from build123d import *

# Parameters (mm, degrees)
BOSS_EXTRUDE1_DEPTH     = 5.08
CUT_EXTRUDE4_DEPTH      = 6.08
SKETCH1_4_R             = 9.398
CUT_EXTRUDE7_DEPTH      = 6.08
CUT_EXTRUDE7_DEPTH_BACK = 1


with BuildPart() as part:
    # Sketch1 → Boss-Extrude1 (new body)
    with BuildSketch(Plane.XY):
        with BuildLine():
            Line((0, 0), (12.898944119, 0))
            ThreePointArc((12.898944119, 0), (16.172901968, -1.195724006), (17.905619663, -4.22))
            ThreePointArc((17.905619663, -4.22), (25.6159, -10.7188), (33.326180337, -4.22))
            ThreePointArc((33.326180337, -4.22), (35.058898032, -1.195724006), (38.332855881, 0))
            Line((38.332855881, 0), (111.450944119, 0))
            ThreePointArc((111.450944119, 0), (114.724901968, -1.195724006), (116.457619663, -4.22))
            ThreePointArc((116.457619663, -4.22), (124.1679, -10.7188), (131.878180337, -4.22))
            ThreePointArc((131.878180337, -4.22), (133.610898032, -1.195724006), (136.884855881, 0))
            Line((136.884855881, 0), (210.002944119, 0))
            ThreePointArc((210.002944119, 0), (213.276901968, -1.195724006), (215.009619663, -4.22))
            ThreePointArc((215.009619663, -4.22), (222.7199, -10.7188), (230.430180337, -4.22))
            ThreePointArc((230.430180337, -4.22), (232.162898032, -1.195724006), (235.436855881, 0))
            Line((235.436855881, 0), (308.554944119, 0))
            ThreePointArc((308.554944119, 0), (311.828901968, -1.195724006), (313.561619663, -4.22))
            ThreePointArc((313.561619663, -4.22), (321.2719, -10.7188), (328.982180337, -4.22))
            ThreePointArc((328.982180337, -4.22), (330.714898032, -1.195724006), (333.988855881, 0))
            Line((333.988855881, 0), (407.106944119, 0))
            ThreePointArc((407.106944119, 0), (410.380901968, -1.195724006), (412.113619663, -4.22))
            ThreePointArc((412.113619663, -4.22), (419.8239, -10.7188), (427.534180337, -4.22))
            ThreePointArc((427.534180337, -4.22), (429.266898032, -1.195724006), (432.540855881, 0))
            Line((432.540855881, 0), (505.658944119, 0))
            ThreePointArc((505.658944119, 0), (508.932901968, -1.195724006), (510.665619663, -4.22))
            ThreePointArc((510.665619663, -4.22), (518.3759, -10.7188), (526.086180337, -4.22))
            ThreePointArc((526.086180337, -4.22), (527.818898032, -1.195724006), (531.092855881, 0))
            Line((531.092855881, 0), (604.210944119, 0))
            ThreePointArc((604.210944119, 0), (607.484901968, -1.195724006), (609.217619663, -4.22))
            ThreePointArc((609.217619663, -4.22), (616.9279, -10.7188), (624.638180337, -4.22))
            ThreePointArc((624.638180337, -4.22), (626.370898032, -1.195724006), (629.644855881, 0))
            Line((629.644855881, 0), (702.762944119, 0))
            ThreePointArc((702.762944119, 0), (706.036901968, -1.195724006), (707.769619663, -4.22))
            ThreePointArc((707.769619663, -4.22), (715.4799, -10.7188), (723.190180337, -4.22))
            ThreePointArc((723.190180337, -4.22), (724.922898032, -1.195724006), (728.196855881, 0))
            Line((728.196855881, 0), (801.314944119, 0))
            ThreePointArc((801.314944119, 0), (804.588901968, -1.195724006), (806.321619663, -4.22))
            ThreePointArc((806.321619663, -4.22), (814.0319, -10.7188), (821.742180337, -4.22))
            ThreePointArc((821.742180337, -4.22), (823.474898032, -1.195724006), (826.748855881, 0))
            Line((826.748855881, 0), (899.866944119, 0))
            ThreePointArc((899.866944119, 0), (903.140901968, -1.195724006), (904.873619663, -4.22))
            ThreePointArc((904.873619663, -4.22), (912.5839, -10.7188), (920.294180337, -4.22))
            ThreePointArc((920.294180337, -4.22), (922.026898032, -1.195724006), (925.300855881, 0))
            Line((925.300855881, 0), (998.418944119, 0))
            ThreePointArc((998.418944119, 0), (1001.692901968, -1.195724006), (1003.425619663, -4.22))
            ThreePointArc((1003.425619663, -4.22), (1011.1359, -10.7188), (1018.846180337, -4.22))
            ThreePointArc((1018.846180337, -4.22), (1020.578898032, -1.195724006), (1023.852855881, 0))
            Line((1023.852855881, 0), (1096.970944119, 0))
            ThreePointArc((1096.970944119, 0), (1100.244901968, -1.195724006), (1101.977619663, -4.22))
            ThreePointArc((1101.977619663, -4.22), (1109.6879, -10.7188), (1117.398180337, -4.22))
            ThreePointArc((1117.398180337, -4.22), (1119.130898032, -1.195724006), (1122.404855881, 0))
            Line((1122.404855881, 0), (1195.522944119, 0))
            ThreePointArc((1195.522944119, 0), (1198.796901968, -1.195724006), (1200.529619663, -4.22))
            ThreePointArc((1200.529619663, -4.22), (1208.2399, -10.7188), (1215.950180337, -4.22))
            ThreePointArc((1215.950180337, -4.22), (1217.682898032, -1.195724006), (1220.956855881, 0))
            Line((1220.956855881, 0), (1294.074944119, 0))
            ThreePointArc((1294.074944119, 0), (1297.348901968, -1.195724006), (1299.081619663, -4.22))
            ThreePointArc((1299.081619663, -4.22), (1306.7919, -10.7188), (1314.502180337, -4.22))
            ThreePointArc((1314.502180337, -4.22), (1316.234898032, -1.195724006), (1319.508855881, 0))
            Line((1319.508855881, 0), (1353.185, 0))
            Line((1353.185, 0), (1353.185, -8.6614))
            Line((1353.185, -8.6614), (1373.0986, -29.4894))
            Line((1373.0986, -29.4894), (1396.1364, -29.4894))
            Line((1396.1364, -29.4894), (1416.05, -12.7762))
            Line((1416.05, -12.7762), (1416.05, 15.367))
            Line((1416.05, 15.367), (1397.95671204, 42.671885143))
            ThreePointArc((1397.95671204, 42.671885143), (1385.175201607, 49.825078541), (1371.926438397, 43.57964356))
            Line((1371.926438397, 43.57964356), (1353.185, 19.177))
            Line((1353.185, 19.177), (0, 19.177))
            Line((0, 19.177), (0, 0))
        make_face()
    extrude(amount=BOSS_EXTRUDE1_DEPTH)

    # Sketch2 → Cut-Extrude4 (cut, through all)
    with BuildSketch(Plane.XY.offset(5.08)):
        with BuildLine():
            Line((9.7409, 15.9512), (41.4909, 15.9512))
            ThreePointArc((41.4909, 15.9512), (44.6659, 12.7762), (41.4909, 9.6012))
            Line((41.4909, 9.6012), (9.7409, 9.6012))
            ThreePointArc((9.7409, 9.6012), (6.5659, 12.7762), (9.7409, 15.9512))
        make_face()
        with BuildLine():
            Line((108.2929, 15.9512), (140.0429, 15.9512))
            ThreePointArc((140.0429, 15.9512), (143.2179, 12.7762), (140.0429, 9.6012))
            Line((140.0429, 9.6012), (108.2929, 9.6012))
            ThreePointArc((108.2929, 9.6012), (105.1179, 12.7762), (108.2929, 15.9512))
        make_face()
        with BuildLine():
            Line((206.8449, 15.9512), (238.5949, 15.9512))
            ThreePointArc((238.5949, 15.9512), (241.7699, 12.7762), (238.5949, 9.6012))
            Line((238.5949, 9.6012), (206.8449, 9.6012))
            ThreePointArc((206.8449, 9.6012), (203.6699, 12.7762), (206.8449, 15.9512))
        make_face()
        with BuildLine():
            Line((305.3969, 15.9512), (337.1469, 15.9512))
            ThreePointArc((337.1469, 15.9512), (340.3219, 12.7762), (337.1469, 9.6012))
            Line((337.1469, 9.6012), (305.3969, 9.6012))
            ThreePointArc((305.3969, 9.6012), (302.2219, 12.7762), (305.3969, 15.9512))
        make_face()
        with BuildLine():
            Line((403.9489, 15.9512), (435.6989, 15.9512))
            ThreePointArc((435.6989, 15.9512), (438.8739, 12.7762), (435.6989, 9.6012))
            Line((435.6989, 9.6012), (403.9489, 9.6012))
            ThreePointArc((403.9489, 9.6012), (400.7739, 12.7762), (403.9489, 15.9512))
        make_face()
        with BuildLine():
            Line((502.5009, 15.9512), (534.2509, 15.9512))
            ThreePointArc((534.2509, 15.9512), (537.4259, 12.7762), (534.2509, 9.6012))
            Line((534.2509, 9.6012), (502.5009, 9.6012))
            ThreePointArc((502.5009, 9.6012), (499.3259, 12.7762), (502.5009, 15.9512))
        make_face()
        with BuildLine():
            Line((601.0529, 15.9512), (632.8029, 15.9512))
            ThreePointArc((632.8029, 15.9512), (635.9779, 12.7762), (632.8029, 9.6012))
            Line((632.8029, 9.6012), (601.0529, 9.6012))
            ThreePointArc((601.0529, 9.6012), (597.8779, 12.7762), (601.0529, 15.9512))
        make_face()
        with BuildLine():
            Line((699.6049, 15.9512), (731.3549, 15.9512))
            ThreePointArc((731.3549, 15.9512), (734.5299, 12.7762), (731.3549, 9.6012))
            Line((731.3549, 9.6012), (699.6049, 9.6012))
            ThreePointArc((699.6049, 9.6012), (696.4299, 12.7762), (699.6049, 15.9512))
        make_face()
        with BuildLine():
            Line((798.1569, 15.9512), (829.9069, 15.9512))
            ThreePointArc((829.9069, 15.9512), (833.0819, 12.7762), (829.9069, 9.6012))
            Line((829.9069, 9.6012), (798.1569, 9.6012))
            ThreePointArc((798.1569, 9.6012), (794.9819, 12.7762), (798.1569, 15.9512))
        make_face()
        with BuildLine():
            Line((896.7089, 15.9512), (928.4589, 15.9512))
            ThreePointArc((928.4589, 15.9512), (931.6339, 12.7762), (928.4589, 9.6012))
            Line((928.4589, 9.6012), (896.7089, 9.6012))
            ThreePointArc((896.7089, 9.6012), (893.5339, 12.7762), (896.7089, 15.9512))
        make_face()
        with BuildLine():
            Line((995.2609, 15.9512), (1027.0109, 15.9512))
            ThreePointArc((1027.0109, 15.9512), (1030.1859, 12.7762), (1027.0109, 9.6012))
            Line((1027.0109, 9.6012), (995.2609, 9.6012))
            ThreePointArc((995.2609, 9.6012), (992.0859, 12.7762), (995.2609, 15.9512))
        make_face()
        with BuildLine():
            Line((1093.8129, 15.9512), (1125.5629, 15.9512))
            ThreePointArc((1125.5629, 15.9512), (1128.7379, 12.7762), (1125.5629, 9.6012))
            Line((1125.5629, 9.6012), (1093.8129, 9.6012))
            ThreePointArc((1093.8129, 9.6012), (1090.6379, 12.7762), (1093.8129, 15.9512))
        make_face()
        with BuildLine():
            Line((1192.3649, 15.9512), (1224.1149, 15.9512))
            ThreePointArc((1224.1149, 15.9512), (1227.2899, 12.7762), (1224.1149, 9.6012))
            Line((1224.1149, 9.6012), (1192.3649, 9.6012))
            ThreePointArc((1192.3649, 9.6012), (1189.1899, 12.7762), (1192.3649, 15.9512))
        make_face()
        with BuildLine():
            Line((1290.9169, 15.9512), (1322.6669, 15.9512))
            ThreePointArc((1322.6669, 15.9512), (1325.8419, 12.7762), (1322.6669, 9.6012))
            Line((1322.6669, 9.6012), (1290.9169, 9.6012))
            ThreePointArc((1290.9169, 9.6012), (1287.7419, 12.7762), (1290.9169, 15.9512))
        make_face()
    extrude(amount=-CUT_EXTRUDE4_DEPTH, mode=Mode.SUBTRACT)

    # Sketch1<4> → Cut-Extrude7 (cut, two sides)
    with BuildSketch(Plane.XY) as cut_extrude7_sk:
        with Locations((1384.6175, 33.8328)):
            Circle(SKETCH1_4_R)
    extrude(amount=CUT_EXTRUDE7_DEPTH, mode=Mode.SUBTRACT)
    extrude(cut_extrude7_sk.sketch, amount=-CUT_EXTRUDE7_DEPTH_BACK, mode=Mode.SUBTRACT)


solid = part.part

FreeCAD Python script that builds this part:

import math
import FreeCAD as App
import Part
import Sketcher
Q = App.Units.Quantity

doc = App.newDocument("Part")
body = doc.addObject("PartDesign::Body", "Body")

sketch1 = body.newObject("Sketcher::SketchObject", "Sketch")
sketch1.AttachmentSupport = (doc.getObject("XY_Plane"), [""])
sketch1.MapMode = "FlatFace"
sketch1.addGeometry(Part.LineSegment(App.Vector(0, 0, 0), App.Vector(13, 0, 0)), False)
sketch1.addGeometry(Part.ArcOfCircle(Part.Circle(App.Vector(13, -5, 0), App.Vector(0, 0, 1), 5), math.radians(10), math.radians(90)), False)
sketch1.addGeometry(Part.ArcOfCircle(Part.Circle(App.Vector(26, -3, 0), App.Vector(0, 0, 1), 8), math.radians(-170), math.radians(-10)), False)
sketch1.addGeometry(Part.ArcOfCircle(Part.Circle(App.Vector(38, -5, 0), App.Vector(0, 0, 1), 5), math.radians(90), math.radians(170)), False)
sketch1.addGeometry(Part.LineSegment(App.Vector(38, 0, 0), App.Vector(111, 0, 0)), False)
sketch1.addGeometry(Part.ArcOfCircle(Part.Circle(App.Vector(111, -5, 0), App.Vector(0, 0, 1), 5), math.radians(10), math.radians(90)), False)
sketch1.addGeometry(Part.ArcOfCircle(Part.Circle(App.Vector(124, -3, 0), App.Vector(0, 0, 1), 8), math.radians(-170), math.radians(-10)), False)
sketch1.addGeometry(Part.ArcOfCircle(Part.Circle(App.Vector(137, -5, 0), App.Vector(0, 0, 1), 5), math.radians(90), math.radians(170)), False)
sketch1.addGeometry(Part.LineSegment(App.Vector(137, 0, 0), App.Vector(210, 0, 0)), False)
sketch1.addGeometry(Part.ArcOfCircle(Part.Circle(App.Vector(210, -5, 0), App.Vector(0, 0, 1), 5), math.radians(10), math.radians(90)), False)
sketch1.addGeometry(Part.ArcOfCircle(Part.Circle(App.Vector(223, -3, 0), App.Vector(0, 0, 1), 8), math.radians(-170), math.radians(-10)), False)
sketch1.addGeometry(Part.ArcOfCircle(Part.Circle(App.Vector(235, -5, 0), App.Vector(0, 0, 1), 5), math.radians(90), math.radians(170)), False)
sketch1.addGeometry(Part.LineSegment(App.Vector(235, 0, 0), App.Vector(309, 0, 0)), False)
sketch1.addGeometry(Part.ArcOfCircle(Part.Circle(App.Vector(309, -5, 0), App.Vector(0, 0, 1), 5), math.radians(10), math.radians(90)), False)
sketch1.addGeometry(Part.ArcOfCircle(Part.Circle(App.Vector(321, -3, 0), App.Vector(0, 0, 1), 8), math.radians(-170), math.radians(-10)), False)
sketch1.addGeometry(Part.ArcOfCircle(Part.Circle(App.Vector(334, -5, 0), App.Vector(0, 0, 1), 5), math.radians(90), math.radians(170)), False)
sketch1.addGeometry(Part.LineSegment(App.Vector(334, 0, 0), App.Vector(407, 0, 0)), False)
sketch1.addGeometry(Part.ArcOfCircle(Part.Circle(App.Vector(407, -5, 0), App.Vector(0, 0, 1), 5), math.radians(10), math.radians(90)), False)
sketch1.addGeometry(Part.ArcOfCircle(Part.Circle(App.Vector(420, -3, 0), App.Vector(0, 0, 1), 8), math.radians(-170), math.radians(-10)), False)
sketch1.addGeometry(Part.ArcOfCircle(Part.Circle(App.Vector(433, -5, 0), App.Vector(0, 0, 1), 5), math.radians(90), math.radians(170)), False)
sketch1.addGeometry(Part.LineSegment(App.Vector(433, 0, 0), App.Vector(506, 0, 0)), False)
sketch1.addGeometry(Part.ArcOfCircle(Part.Circle(App.Vector(506, -5, 0), App.Vector(0, 0, 1), 5), math.radians(10), math.radians(90)), False)
sketch1.addGeometry(Part.ArcOfCircle(Part.Circle(App.Vector(518, -3, 0), App.Vector(0, 0, 1), 8), math.radians(-170), math.radians(-10)), False)
sketch1.addGeometry(Part.ArcOfCircle(Part.Circle(App.Vector(531, -5, 0), App.Vector(0, 0, 1), 5), math.radians(90), math.radians(170)), False)
sketch1.addGeometry(Part.LineSegment(App.Vector(531, 0, 0), App.Vector(604, 0, 0)), False)
sketch1.addGeometry(Part.ArcOfCircle(Part.Circle(App.Vector(604, -5, 0), App.Vector(0, 0, 1), 5), math.radians(10), math.radians(90)), False)
sketch1.addGeometry(Part.ArcOfCircle(Part.Circle(App.Vector(617, -3, 0), App.Vector(0, 0, 1), 8), math.radians(-170), math.radians(-10)), False)
sketch1.addGeometry(Part.ArcOfCircle(Part.Circle(App.Vector(630, -5, 0), App.Vector(0, 0, 1), 5), math.radians(90), math.radians(170)), False)
sketch1.addGeometry(Part.LineSegment(App.Vector(630, 0, 0), App.Vector(703, 0, 0)), False)
sketch1.addGeometry(Part.ArcOfCircle(Part.Circle(App.Vector(703, -5, 0), App.Vector(0, 0, 1), 5), math.radians(10), math.radians(90)), False)
sketch1.addGeometry(Part.ArcOfCircle(Part.Circle(App.Vector(715, -3, 0), App.Vector(0, 0, 1), 8), math.radians(-170), math.radians(-10)), False)
sketch1.addGeometry(Part.ArcOfCircle(Part.Circle(App.Vector(728, -5, 0), App.Vector(0, 0, 1), 5), math.radians(90), math.radians(170)), False)
sketch1.addGeometry(Part.LineSegment(App.Vector(728, 0, 0), App.Vector(801, 0, 0)), False)
sketch1.addGeometry(Part.ArcOfCircle(Part.Circle(App.Vector(801, -5, 0), App.Vector(0, 0, 1), 5), math.radians(10), math.radians(90)), False)
sketch1.addGeometry(Part.ArcOfCircle(Part.Circle(App.Vector(814, -3, 0), App.Vector(0, 0, 1), 8), math.radians(-170), math.radians(-10)), False)
sketch1.addGeometry(Part.ArcOfCircle(Part.Circle(App.Vector(827, -5, 0), App.Vector(0, 0, 1), 5), math.radians(90), math.radians(170)), False)
sketch1.addGeometry(Part.LineSegment(App.Vector(827, 0, 0), App.Vector(900, 0, 0)), False)
sketch1.addGeometry(Part.ArcOfCircle(Part.Circle(App.Vector(900, -5, 0), App.Vector(0, 0, 1), 5), math.radians(10), math.radians(90)), False)
sketch1.addGeometry(Part.ArcOfCircle(Part.Circle(App.Vector(913, -3, 0), App.Vector(0, 0, 1), 8), math.radians(-170), math.radians(-10)), False)
sketch1.addGeometry(Part.ArcOfCircle(Part.Circle(App.Vector(925, -5, 0), App.Vector(0, 0, 1), 5), math.radians(90), math.radians(170)), False)
sketch1.addGeometry(Part.LineSegment(App.Vector(925, 0, 0), App.Vector(998, 0, 0)), False)
sketch1.addGeometry(Part.ArcOfCircle(Part.Circle(App.Vector(998, -5, 0), App.Vector(0, 0, 1), 5), math.radians(10), math.radians(90)), False)
sketch1.addGeometry(Part.ArcOfCircle(Part.Circle(App.Vector(1011, -3, 0), App.Vector(0, 0, 1), 8), math.radians(-170), math.radians(-10)), False)
sketch1.addGeometry(Part.ArcOfCircle(Part.Circle(App.Vector(1024, -5, 0), App.Vector(0, 0, 1), 5), math.radians(90), math.radians(170)), False)
sketch1.addGeometry(Part.LineSegment(App.Vector(1024, 0, 0), App.Vector(1097, 0, 0)), False)
sketch1.addGeometry(Part.ArcOfCircle(Part.Circle(App.Vector(1097, -5, 0), App.Vector(0, 0, 1), 5), math.radians(10), math.radians(90)), False)
sketch1.addGeometry(Part.ArcOfCircle(Part.Circle(App.Vector(1110, -3, 0), App.Vector(0, 0, 1), 8), math.radians(-170), math.radians(-10)), False)
sketch1.addGeometry(Part.ArcOfCircle(Part.Circle(App.Vector(1122, -5, 0), App.Vector(0, 0, 1), 5), math.radians(90), math.radians(170)), False)
sketch1.addGeometry(Part.LineSegment(App.Vector(1122, 0, 0), App.Vector(1196, 0, 0)), False)
sketch1.addGeometry(Part.ArcOfCircle(Part.Circle(App.Vector(1196, -5, 0), App.Vector(0, 0, 1), 5), math.radians(10), math.radians(90)), False)
sketch1.addGeometry(Part.ArcOfCircle(Part.Circle(App.Vector(1208, -3, 0), App.Vector(0, 0, 1), 8), math.radians(-170), math.radians(-10)), False)
sketch1.addGeometry(Part.ArcOfCircle(Part.Circle(App.Vector(1221, -5, 0), App.Vector(0, 0, 1), 5), math.radians(90), math.radians(170)), False)
sketch1.addGeometry(Part.LineSegment(App.Vector(1221, 0, 0), App.Vector(1294, 0, 0)), False)
sketch1.addGeometry(Part.ArcOfCircle(Part.Circle(App.Vector(1294, -5, 0), App.Vector(0, 0, 1), 5), math.radians(10), math.radians(90)), False)
sketch1.addGeometry(Part.ArcOfCircle(Part.Circle(App.Vector(1307, -3, 0), App.Vector(0, 0, 1), 8), math.radians(-170), math.radians(-10)), False)
sketch1.addGeometry(Part.ArcOfCircle(Part.Circle(App.Vector(1320, -5, 0), App.Vector(0, 0, 1), 5), math.radians(90), math.radians(170)), False)
sketch1.addGeometry(Part.LineSegment(App.Vector(1320, 0, 0), App.Vector(1353, 0, 0)), False)
sketch1.addGeometry(Part.LineSegment(App.Vector(1353, 0, 0), App.Vector(1353, -9, 0)), False)
sketch1.addGeometry(Part.LineSegment(App.Vector(1353, -9, 0), App.Vector(1373, -29, 0)), False)
sketch1.addGeometry(Part.LineSegment(App.Vector(1373, -29, 0), App.Vector(1396, -29, 0)), False)
sketch1.addGeometry(Part.LineSegment(App.Vector(1396, -29, 0), App.Vector(1416, -13, 0)), False)
sketch1.addGeometry(Part.LineSegment(App.Vector(1416, -13, 0), App.Vector(1416, 15, 0)), False)
sketch1.addGeometry(Part.LineSegment(App.Vector(1416, 15, 0), App.Vector(1398, 43, 0)), False)
sketch1.addGeometry(Part.ArcOfCircle(Part.Circle(App.Vector(1385, 34, 0), App.Vector(0, 0, 1), 16), math.radians(34), math.radians(142)), False)
sketch1.addGeometry(Part.LineSegment(App.Vector(1372, 44, 0), App.Vector(1353, 19, 0)), False)
sketch1.addGeometry(Part.LineSegment(App.Vector(1353, 19, 0), App.Vector(0, 19, 0)), False)
sketch1.addGeometry(Part.LineSegment(App.Vector(0, 19, 0), App.Vector(0, 0, 0)), False)
sketch1.addConstraint(Sketcher.Constraint("Tangent", 0, 2, 1, 2))
sketch1.addConstraint(Sketcher.Constraint("Tangent", 1, 1, 2, 1))
sketch1.addConstraint(Sketcher.Constraint("Tangent", 2, 2, 3, 2))
sketch1.addConstraint(Sketcher.Constraint("Tangent", 3, 1, 4, 1))
sketch1.addConstraint(Sketcher.Constraint("Tangent", 4, 2, 5, 2))
sketch1.addConstraint(Sketcher.Constraint("Tangent", 5, 1, 6, 1))
sketch1.addConstraint(Sketcher.Constraint("Tangent", 6, 2, 7, 2))
sketch1.addConstraint(Sketcher.Constraint("Tangent", 7, 1, 8, 1))
sketch1.addConstraint(Sketcher.Constraint("Tangent", 8, 2, 9, 2))
sketch1.addConstraint(Sketcher.Constraint("Tangent", 9, 1, 10, 1))
sketch1.addConstraint(Sketcher.Constraint("Tangent", 10, 2, 11, 2))
sketch1.addConstraint(Sketcher.Constraint("Tangent", 11, 1, 12, 1))
sketch1.addConstraint(Sketcher.Constraint("Tangent", 12, 2, 13, 2))
sketch1.addConstraint(Sketcher.Constraint("Tangent", 13, 1, 14, 1))
sketch1.addConstraint(Sketcher.Constraint("Tangent", 14, 2, 15, 2))
sketch1.addConstraint(Sketcher.Constraint("Tangent", 15, 1, 16, 1))
sketch1.addConstraint(Sketcher.Constraint("Tangent", 16, 2, 17, 2))
sketch1.addConstraint(Sketcher.Constraint("Tangent", 17, 1, 18, 1))
sketch1.addConstraint(Sketcher.Constraint("Tangent", 18, 2, 19, 2))
sketch1.addConstraint(Sketcher.Constraint("Tangent", 19, 1, 20, 1))
sketch1.addConstraint(Sketcher.Constraint("Tangent", 20, 2, 21, 2))
sketch1.addConstraint(Sketcher.Constraint("Tangent", 21, 1, 22, 1))
sketch1.addConstraint(Sketcher.Constraint("Tangent", 22, 2, 23, 2))
sketch1.addConstraint(Sketcher.Constraint("Tangent", 23, 1, 24, 1))
sketch1.addConstraint(Sketcher.Constraint("Tangent", 24, 2, 25, 2))
sketch1.addConstraint(Sketcher.Constraint("Tangent", 25, 1, 26, 1))
sketch1.addConstraint(Sketcher.Constraint("Tangent", 26, 2, 27, 2))
sketch1.addConstraint(Sketcher.Constraint("Tangent", 27, 1, 28, 1))
sketch1.addConstraint(Sketcher.Constraint("Tangent", 28, 2, 29, 2))
sketch1.addConstraint(Sketcher.Constraint("Tangent", 29, 1, 30, 1))
sketch1.addConstraint(Sketcher.Constraint("Tangent", 30, 2, 31, 2))
sketch1.addConstraint(Sketcher.Constraint("Tangent", 31, 1, 32, 1))
sketch1.addConstraint(Sketcher.Constraint("Tangent", 32, 2, 33, 2))
sketch1.addConstraint(Sketcher.Constraint("Tangent", 33, 1, 34, 1))
sketch1.addConstraint(Sketcher.Constraint("Tangent", 34, 2, 35, 2))
sketch1.addConstraint(Sketcher.Constraint("Tangent", 35, 1, 36, 1))
sketch1.addConstraint(Sketcher.Constraint("Tangent", 36, 2, 37, 2))
sketch1.addConstraint(Sketcher.Constraint("Tangent", 37, 1, 38, 1))
sketch1.addConstraint(Sketcher.Constraint("Tangent", 38, 2, 39, 2))
sketch1.addConstraint(Sketcher.Constraint("Tangent", 39, 1, 40, 1))
sketch1.addConstraint(Sketcher.Constraint("Tangent", 40, 2, 41, 2))
sketch1.addConstraint(Sketcher.Constraint("Tangent", 41, 1, 42, 1))
sketch1.addConstraint(Sketcher.Constraint("Tangent", 42, 2, 43, 2))
sketch1.addConstraint(Sketcher.Constraint("Tangent", 43, 1, 44, 1))
sketch1.addConstraint(Sketcher.Constraint("Tangent", 44, 2, 45, 2))
sketch1.addConstraint(Sketcher.Constraint("Tangent", 45, 1, 46, 1))
sketch1.addConstraint(Sketcher.Constraint("Tangent", 46, 2, 47, 2))
sketch1.addConstraint(Sketcher.Constraint("Tangent", 47, 1, 48, 1))
sketch1.addConstraint(Sketcher.Constraint("Tangent", 48, 2, 49, 2))
sketch1.addConstraint(Sketcher.Constraint("Tangent", 49, 1, 50, 1))
sketch1.addConstraint(Sketcher.Constraint("Tangent", 50, 2, 51, 2))
sketch1.addConstraint(Sketcher.Constraint("Tangent", 51, 1, 52, 1))
sketch1.addConstraint(Sketcher.Constraint("Tangent", 52, 2, 53, 2))
sketch1.addConstraint(Sketcher.Constraint("Tangent", 53, 1, 54, 1))
sketch1.addConstraint(Sketcher.Constraint("Tangent", 54, 2, 55, 2))
sketch1.addConstraint(Sketcher.Constraint("Tangent", 55, 1, 56, 1))
sketch1.addConstraint(Sketcher.Constraint("Coincident", 56, 2, 57, 1))
sketch1.addConstraint(Sketcher.Constraint("Coincident", 57, 2, 58, 1))
sketch1.addConstraint(Sketcher.Constraint("Coincident", 58, 2, 59, 1))
sketch1.addConstraint(Sketcher.Constraint("Coincident", 59, 2, 60, 1))
sketch1.addConstraint(Sketcher.Constraint("Coincident", 60, 2, 61, 1))
sketch1.addConstraint(Sketcher.Constraint("Coincident", 61, 2, 62, 1))
sketch1.addConstraint(Sketcher.Constraint("Tangent", 62, 2, 63, 1))
sketch1.addConstraint(Sketcher.Constraint("Tangent", 63, 2, 64, 1))
sketch1.addConstraint(Sketcher.Constraint("Coincident", 64, 2, 65, 1))
sketch1.addConstraint(Sketcher.Constraint("Coincident", 65, 2, 66, 1))
sketch1.addConstraint(Sketcher.Constraint("Coincident", 66, 2, 0, 1))
sketch1.addConstraint(Sketcher.Constraint("Horizontal", 0))
sketch1.addConstraint(Sketcher.Constraint("Horizontal", 4))
sketch1.addConstraint(Sketcher.Constraint("Horizontal", 8))
sketch1.addConstraint(Sketcher.Constraint("Horizontal", 12))
sketch1.addConstraint(Sketcher.Constraint("Horizontal", 16))
sketch1.addConstraint(Sketcher.Constraint("Horizontal", 20))
sketch1.addConstraint(Sketcher.Constraint("Horizontal", 24))
sketch1.addConstraint(Sketcher.Constraint("Horizontal", 28))
sketch1.addConstraint(Sketcher.Constraint("Horizontal", 32))
sketch1.addConstraint(Sketcher.Constraint("Horizontal", 36))
sketch1.addConstraint(Sketcher.Constraint("Horizontal", 40))
sketch1.addConstraint(Sketcher.Constraint("Horizontal", 44))
sketch1.addConstraint(Sketcher.Constraint("Horizontal", 48))
sketch1.addConstraint(Sketcher.Constraint("Horizontal", 52))
sketch1.addConstraint(Sketcher.Constraint("Horizontal", 56))
sketch1.addConstraint(Sketcher.Constraint("Vertical", 57))
sketch1.addConstraint(Sketcher.Constraint("Horizontal", 59))
sketch1.addConstraint(Sketcher.Constraint("Vertical", 61))
sketch1.addConstraint(Sketcher.Constraint("Horizontal", 65))
sketch1.addConstraint(Sketcher.Constraint("Vertical", 66))
sketch1.addConstraint(Sketcher.Constraint("Coincident", 66, 2, -1, 1))
sketch1.addConstraint(Sketcher.Constraint("Equal", 1, 3))
sketch1.addConstraint(Sketcher.Constraint("Equal", 3, 5))
sketch1.addConstraint(Sketcher.Constraint("Equal", 2, 6))
sketch1.addConstraint(Sketcher.Constraint("Equal", 5, 7))
sketch1.addConstraint(Sketcher.Constraint("Equal", 7, 9))
sketch1.addConstraint(Sketcher.Constraint("Equal", 6, 10))
sketch1.addConstraint(Sketcher.Constraint("Equal", 9, 11))
sketch1.addConstraint(Sketcher.Constraint("Equal", 11, 13))
sketch1.addConstraint(Sketcher.Constraint("Equal", 10, 14))
sketch1.addConstraint(Sketcher.Constraint("Equal", 13, 15))
sketch1.addConstraint(Sketcher.Constraint("Equal", 15, 17))
sketch1.addConstraint(Sketcher.Constraint("Equal", 14, 18))
sketch1.addConstraint(Sketcher.Constraint("Equal", 17, 19))
sketch1.addConstraint(Sketcher.Constraint("Equal", 19, 21))
sketch1.addConstraint(Sketcher.Constraint("Equal", 18, 22))
sketch1.addConstraint(Sketcher.Constraint("Equal", 21, 23))
sketch1.addConstraint(Sketcher.Constraint("Equal", 23, 25))
sketch1.addConstraint(Sketcher.Constraint("Equal", 22, 26))
sketch1.addConstraint(Sketcher.Constraint("Equal", 25, 27))
sketch1.addConstraint(Sketcher.Constraint("Equal", 27, 29))
sketch1.addConstraint(Sketcher.Constraint("Equal", 26, 30))
sketch1.addConstraint(Sketcher.Constraint("Equal", 29, 31))
sketch1.addConstraint(Sketcher.Constraint("Equal", 31, 33))
sketch1.addConstraint(Sketcher.Constraint("Equal", 30, 34))
sketch1.addConstraint(Sketcher.Constraint("Equal", 33, 35))
sketch1.addConstraint(Sketcher.Constraint("Equal", 35, 37))
sketch1.addConstraint(Sketcher.Constraint("Equal", 34, 38))
sketch1.addConstraint(Sketcher.Constraint("Equal", 37, 39))
sketch1.addConstraint(Sketcher.Constraint("Equal", 39, 41))
sketch1.addConstraint(Sketcher.Constraint("Equal", 38, 42))
sketch1.addConstraint(Sketcher.Constraint("Equal", 41, 43))
sketch1.addConstraint(Sketcher.Constraint("Equal", 43, 45))
sketch1.addConstraint(Sketcher.Constraint("Equal", 42, 46))
sketch1.addConstraint(Sketcher.Constraint("Equal", 45, 47))
sketch1.addConstraint(Sketcher.Constraint("Equal", 47, 49))
sketch1.addConstraint(Sketcher.Constraint("Equal", 46, 50))
sketch1.addConstraint(Sketcher.Constraint("Equal", 49, 51))
sketch1.addConstraint(Sketcher.Constraint("Equal", 51, 53))
sketch1.addConstraint(Sketcher.Constraint("Equal", 50, 54))
sketch1.addConstraint(Sketcher.Constraint("Equal", 53, 55))
sketch1.addConstraint(Sketcher.Constraint("PointOnObject", 3, 1, -1))
sketch1.addConstraint(Sketcher.Constraint("PointOnObject", 7, 1, -1))
sketch1.addConstraint(Sketcher.Constraint("PointOnObject", 11, 1, -1))
sketch1.addConstraint(Sketcher.Constraint("PointOnObject", 15, 1, -1))
sketch1.addConstraint(Sketcher.Constraint("PointOnObject", 19, 1, -1))
sketch1.addConstraint(Sketcher.Constraint("PointOnObject", 23, 1, -1))
sketch1.addConstraint(Sketcher.Constraint("PointOnObject", 27, 1, -1))
sketch1.addConstraint(Sketcher.Constraint("PointOnObject", 31, 1, -1))
sketch1.addConstraint(Sketcher.Constraint("PointOnObject", 35, 1, -1))
sketch1.addConstraint(Sketcher.Constraint("PointOnObject", 39, 1, -1))
sketch1.addConstraint(Sketcher.Constraint("PointOnObject", 43, 1, -1))
sketch1.addConstraint(Sketcher.Constraint("PointOnObject", 47, 1, -1))
sketch1.addConstraint(Sketcher.Constraint("PointOnObject", 51, 1, -1))
sketch1.addConstraint(Sketcher.Constraint("PointOnObject", 55, 1, -1))
sketch1.addConstraint(Sketcher.Constraint("Horizontal", 2, 3, 6, 3))
sketch1.addConstraint(Sketcher.Constraint("Horizontal", 6, 3, 10, 3))
sketch1.addConstraint(Sketcher.Constraint("Horizontal", 10, 3, 14, 3))
sketch1.addConstraint(Sketcher.Constraint("Horizontal", 14, 3, 18, 3))
sketch1.addConstraint(Sketcher.Constraint("Horizontal", 18, 3, 22, 3))
sketch1.addConstraint(Sketcher.Constraint("Horizontal", 22, 3, 26, 3))
sketch1.addConstraint(Sketcher.Constraint("Horizontal", 26, 3, 30, 3))
sketch1.addConstraint(Sketcher.Constraint("Horizontal", 30, 3, 34, 3))
sketch1.addConstraint(Sketcher.Constraint("Horizontal", 34, 3, 38, 3))
sketch1.addConstraint(Sketcher.Constraint("Horizontal", 38, 3, 42, 3))
sketch1.addConstraint(Sketcher.Constraint("Horizontal", 42, 3, 46, 3))
sketch1.addConstraint(Sketcher.Constraint("Horizontal", 46, 3, 50, 3))
sketch1.addConstraint(Sketcher.Constraint("Horizontal", 50, 3, 54, 3))
sketch1.addConstraint(Sketcher.Constraint("Vertical", 57, 2, 64, 2))
sketch1.addConstraint(Sketcher.Constraint("Equal", 4, 8))
sketch1.addConstraint(Sketcher.Constraint("Equal", 8, 12))
sketch1.addConstraint(Sketcher.Constraint("Equal", 12, 16))
sketch1.addConstraint(Sketcher.Constraint("Equal", 16, 20))
sketch1.addConstraint(Sketcher.Constraint("Equal", 20, 24))
sketch1.addConstraint(Sketcher.Constraint("Equal", 24, 28))
sketch1.addConstraint(Sketcher.Constraint("Equal", 28, 32))
sketch1.addConstraint(Sketcher.Constraint("Equal", 32, 36))
sketch1.addConstraint(Sketcher.Constraint("Equal", 36, 40))
sketch1.addConstraint(Sketcher.Constraint("Equal", 40, 44))
sketch1.addConstraint(Sketcher.Constraint("Equal", 44, 48))
sketch1.addConstraint(Sketcher.Constraint("Equal", 48, 52))
sketch1.addConstraint(Sketcher.Constraint("Radius", 1, Q("0.2 in")))
sketch1.addConstraint(Sketcher.Constraint("Radius", 63, Q("0.63 in")))
sketch1.addConstraint(Sketcher.Constraint("Radius", 2, Q("0.308 in")))
sketch1.addConstraint(Sketcher.Constraint("DistanceX", 59, 1, 59, 2, Q("0.907 in")))
sketch1.addConstraint(Sketcher.Constraint("DistanceX", 65, 2, 65, 1, Q("53.275 in")))
sketch1.addConstraint(Sketcher.Constraint("DistanceY", 57, 2, 57, 1, Q("0.341 in")))
sketch1.addConstraint(Sketcher.Constraint("DistanceY", 61, 1, 61, 2, Q("1.108 in")))
sketch1.addConstraint(Sketcher.Constraint("DistanceY", 66, 2, 66, 1, Q("0.755 in")))
sketch1.addConstraint(Sketcher.Constraint("DistanceX", -1, 1, 60, 2, Q("55.75 in")))
sketch1.addConstraint(Sketcher.Constraint("Angle", 62, Q("123.530017 deg")))
sketch1.addConstraint(Sketcher.Constraint("DistanceY", 2, 3, -1, 1, Q("0.114 in")))
sketch1.addConstraint(Sketcher.Constraint("DistanceY", -1, 1, 63, 3, Q("1.332 in")))
sketch1.addConstraint(Sketcher.Constraint("DistanceX", -1, 1, 58, 2, Q("54.059 in")))
sketch1.addConstraint(Sketcher.Constraint("DistanceY", 58, 2, -1, 1, Q("1.161 in")))
sketch1.addConstraint(Sketcher.Constraint("DistanceY", 60, 2, -1, 1, Q("0.503 in")))
sketch1.addConstraint(Sketcher.Constraint("DistanceX", -1, 1, 2, 3, Q("1.0085 in")))
sketch1.addConstraint(Sketcher.Constraint("DistanceX", -1, 1, 6, 3, Q("4.8885 in")))
pad1 = body.newObject("PartDesign::Pad", "Pad")
pad1.Profile = sketch1
pad1.Length = Q("0.2 in")

sketch2 = body.newObject("Sketcher::SketchObject", "Sketch001")
sketch2.AttachmentSupport = (doc.getObject("XY_Plane"), [""])
sketch2.MapMode = "FlatFace"
sketch2.AttachmentOffset = App.Placement(App.Vector(0, 0, 0.2 * 25.4), App.Rotation())
sketch2.addGeometry(Part.LineSegment(App.Vector(41.5, 16, 0), App.Vector(9.7, 16, 0)), False)
sketch2.addGeometry(Part.ArcOfCircle(Part.Circle(App.Vector(9.7, 12.8, 0), App.Vector(0, 0, 1), 3.2), math.radians(90), math.radians(270)), False)
sketch2.addGeometry(Part.LineSegment(App.Vector(9.7, 9.6, 0), App.Vector(41.5, 9.6, 0)), False)
sketch2.addGeometry(Part.ArcOfCircle(Part.Circle(App.Vector(41.5, 12.8, 0), App.Vector(0, 0, 1), 3.2), math.radians(-90), math.radians(90)), False)
sketch2.addGeometry(Part.LineSegment(App.Vector(140, 16, 0), App.Vector(108.3, 16, 0)), False)
sketch2.addGeometry(Part.ArcOfCircle(Part.Circle(App.Vector(108.3, 12.8, 0), App.Vector(0, 0, 1), 3.2), math.radians(90), math.radians(270)), False)
sketch2.addGeometry(Part.LineSegment(App.Vector(108.3, 9.6, 0), App.Vector(140, 9.6, 0)), False)
sketch2.addGeometry(Part.ArcOfCircle(Part.Circle(App.Vector(140, 12.8, 0), App.Vector(0, 0, 1), 3.2), math.radians(-90), math.radians(90)), False)
sketch2.addGeometry(Part.LineSegment(App.Vector(238.6, 16, 0), App.Vector(206.8, 16, 0)), False)
sketch2.addGeometry(Part.ArcOfCircle(Part.Circle(App.Vector(206.8, 12.8, 0), App.Vector(0, 0, 1), 3.2), math.radians(90), math.radians(270)), False)
sketch2.addGeometry(Part.LineSegment(App.Vector(206.8, 9.6, 0), App.Vector(238.6, 9.6, 0)), False)
sketch2.addGeometry(Part.ArcOfCircle(Part.Circle(App.Vector(238.6, 12.8, 0), App.Vector(0, 0, 1), 3.2), math.radians(-90), math.radians(90)), False)
sketch2.addGeometry(Part.LineSegment(App.Vector(337.1, 16, 0), App.Vector(305.4, 16, 0)), False)
sketch2.addGeometry(Part.ArcOfCircle(Part.Circle(App.Vector(305.4, 12.8, 0), App.Vector(0, 0, 1), 3.2), math.radians(90), math.radians(270)), False)
sketch2.addGeometry(Part.LineSegment(App.Vector(305.4, 9.6, 0), App.Vector(337.1, 9.6, 0)), False)
sketch2.addGeometry(Part.ArcOfCircle(Part.Circle(App.Vector(337.1, 12.8, 0), App.Vector(0, 0, 1), 3.2), math.radians(-90), math.radians(90)), False)
sketch2.addGeometry(Part.LineSegment(App.Vector(435.7, 16, 0), App.Vector(403.9, 16, 0)), False)
sketch2.addGeometry(Part.ArcOfCircle(Part.Circle(App.Vector(403.9, 12.8, 0), App.Vector(0, 0, 1), 3.2), math.radians(90), math.radians(270)), False)
sketch2.addGeometry(Part.LineSegment(App.Vector(403.9, 9.6, 0), App.Vector(435.7, 9.6, 0)), False)
sketch2.addGeometry(Part.ArcOfCircle(Part.Circle(App.Vector(435.7, 12.8, 0), App.Vector(0, 0, 1), 3.2), math.radians(-90), math.radians(90)), False)
sketch2.addGeometry(Part.LineSegment(App.Vector(534.3, 16, 0), App.Vector(502.5, 16, 0)), False)
sketch2.addGeometry(Part.ArcOfCircle(Part.Circle(App.Vector(502.5, 12.8, 0), App.Vector(0, 0, 1), 3.2), math.radians(90), math.radians(270)), False)
sketch2.addGeometry(Part.LineSegment(App.Vector(502.5, 9.6, 0), App.Vector(534.3, 9.6, 0)), False)
sketch2.addGeometry(Part.ArcOfCircle(Part.Circle(App.Vector(534.3, 12.8, 0), App.Vector(0, 0, 1), 3.2), math.radians(-90), math.radians(90)), False)
sketch2.addGeometry(Part.LineSegment(App.Vector(632.8, 16, 0), App.Vector(601.1, 16, 0)), False)
sketch2.addGeometry(Part.ArcOfCircle(Part.Circle(App.Vector(601.1, 12.8, 0), App.Vector(0, 0, 1), 3.2), math.radians(90), math.radians(270)), False)
sketch2.addGeometry(Part.LineSegment(App.Vector(601.1, 9.6, 0), App.Vector(632.8, 9.6, 0)), False)
sketch2.addGeometry(Part.ArcOfCircle(Part.Circle(App.Vector(632.8, 12.8, 0), App.Vector(0, 0, 1), 3.2), math.radians(-90), math.radians(90)), False)
sketch2.addGeometry(Part.LineSegment(App.Vector(731.4, 16, 0), App.Vector(699.6, 16, 0)), False)
sketch2.addGeometry(Part.ArcOfCircle(Part.Circle(App.Vector(699.6, 12.8, 0), App.Vector(0, 0, 1), 3.2), math.radians(90), math.radians(270)), False)
sketch2.addGeometry(Part.LineSegment(App.Vector(699.6, 9.6, 0), App.Vector(731.4, 9.6, 0)), False)
sketch2.addGeometry(Part.ArcOfCircle(Part.Circle(App.Vector(731.4, 12.8, 0), App.Vector(0, 0, 1), 3.2), math.radians(-90), math.radians(90)), False)
sketch2.addGeometry(Part.LineSegment(App.Vector(829.9, 16, 0), App.Vector(798.2, 16, 0)), False)
sketch2.addGeometry(Part.ArcOfCircle(Part.Circle(App.Vector(798.2, 12.8, 0), App.Vector(0, 0, 1), 3.2), math.radians(90), math.radians(270)), False)
sketch2.addGeometry(Part.LineSegment(App.Vector(798.2, 9.6, 0), App.Vector(829.9, 9.6, 0)), False)
sketch2.addGeometry(Part.ArcOfCircle(Part.Circle(App.Vector(829.9, 12.8, 0), App.Vector(0, 0, 1), 3.2), math.radians(-90), math.radians(90)), False)
sketch2.addGeometry(Part.LineSegment(App.Vector(928.5, 16, 0), App.Vector(896.7, 16, 0)), False)
sketch2.addGeometry(Part.ArcOfCircle(Part.Circle(App.Vector(896.7, 12.8, 0), App.Vector(0, 0, 1), 3.2), math.radians(90), math.radians(270)), False)
sketch2.addGeometry(Part.LineSegment(App.Vector(896.7, 9.6, 0), App.Vector(928.5, 9.6, 0)), False)
sketch2.addGeometry(Part.ArcOfCircle(Part.Circle(App.Vector(928.5, 12.8, 0), App.Vector(0, 0, 1), 3.2), math.radians(-90), math.radians(90)), False)
sketch2.addGeometry(Part.LineSegment(App.Vector(1027, 16, 0), App.Vector(995.3, 16, 0)), False)
sketch2.addGeometry(Part.ArcOfCircle(Part.Circle(App.Vector(995.3, 12.8, 0), App.Vector(0, 0, 1), 3.2), math.radians(90), math.radians(270)), False)
sketch2.addGeometry(Part.LineSegment(App.Vector(995.3, 9.6, 0), App.Vector(1027, 9.6, 0)), False)
sketch2.addGeometry(Part.ArcOfCircle(Part.Circle(App.Vector(1027, 12.8, 0), App.Vector(0, 0, 1), 3.2), math.radians(-90), math.radians(90)), False)
sketch2.addGeometry(Part.LineSegment(App.Vector(1125.6, 16, 0), App.Vector(1093.8, 16, 0)), False)
sketch2.addGeometry(Part.ArcOfCircle(Part.Circle(App.Vector(1093.8, 12.8, 0), App.Vector(0, 0, 1), 3.2), math.radians(90), math.radians(270)), False)
sketch2.addGeometry(Part.LineSegment(App.Vector(1093.8, 9.6, 0), App.Vector(1125.6, 9.6, 0)), False)
sketch2.addGeometry(Part.ArcOfCircle(Part.Circle(App.Vector(1125.6, 12.8, 0), App.Vector(0, 0, 1), 3.2), math.radians(-90), math.radians(90)), False)
sketch2.addGeometry(Part.LineSegment(App.Vector(1224.1, 16, 0), App.Vector(1192.4, 16, 0)), False)
sketch2.addGeometry(Part.ArcOfCircle(Part.Circle(App.Vector(1192.4, 12.8, 0), App.Vector(0, 0, 1), 3.2), math.radians(90), math.radians(270)), False)
sketch2.addGeometry(Part.LineSegment(App.Vector(1192.4, 9.6, 0), App.Vector(1224.1, 9.6, 0)), False)
sketch2.addGeometry(Part.ArcOfCircle(Part.Circle(App.Vector(1224.1, 12.8, 0), App.Vector(0, 0, 1), 3.2), math.radians(-90), math.radians(90)), False)
sketch2.addGeometry(Part.LineSegment(App.Vector(1322.7, 16, 0), App.Vector(1290.9, 16, 0)), False)
sketch2.addGeometry(Part.ArcOfCircle(Part.Circle(App.Vector(1290.9, 12.8, 0), App.Vector(0, 0, 1), 3.2), math.radians(90), math.radians(270)), False)
sketch2.addGeometry(Part.LineSegment(App.Vector(1290.9, 9.6, 0), App.Vector(1322.7, 9.6, 0)), False)
sketch2.addGeometry(Part.ArcOfCircle(Part.Circle(App.Vector(1322.7, 12.8, 0), App.Vector(0, 0, 1), 3.2), math.radians(-90), math.radians(90)), False)
sketch2.addConstraint(Sketcher.Constraint("Tangent", 0, 2, 1, 1))
sketch2.addConstraint(Sketcher.Constraint("Tangent", 1, 2, 2, 1))
sketch2.addConstraint(Sketcher.Constraint("Tangent", 2, 2, 3, 1))
sketch2.addConstraint(Sketcher.Constraint("Tangent", 3, 2, 0, 1))
sketch2.addConstraint(Sketcher.Constraint("Tangent", 4, 2, 5, 1))
sketch2.addConstraint(Sketcher.Constraint("Tangent", 5, 2, 6, 1))
sketch2.addConstraint(Sketcher.Constraint("Tangent", 6, 2, 7, 1))
sketch2.addConstraint(Sketcher.Constraint("Tangent", 7, 2, 4, 1))
sketch2.addConstraint(Sketcher.Constraint("Tangent", 8, 2, 9, 1))
sketch2.addConstraint(Sketcher.Constraint("Tangent", 9, 2, 10, 1))
sketch2.addConstraint(Sketcher.Constraint("Tangent", 10, 2, 11, 1))
sketch2.addConstraint(Sketcher.Constraint("Tangent", 11, 2, 8, 1))
sketch2.addConstraint(Sketcher.Constraint("Tangent", 12, 2, 13, 1))
sketch2.addConstraint(Sketcher.Constraint("Tangent", 13, 2, 14, 1))
sketch2.addConstraint(Sketcher.Constraint("Tangent", 14, 2, 15, 1))
sketch2.addConstraint(Sketcher.Constraint("Tangent", 15, 2, 12, 1))
sketch2.addConstraint(Sketcher.Constraint("Tangent", 16, 2, 17, 1))
sketch2.addConstraint(Sketcher.Constraint("Tangent", 17, 2, 18, 1))
sketch2.addConstraint(Sketcher.Constraint("Tangent", 18, 2, 19, 1))
sketch2.addConstraint(Sketcher.Constraint("Tangent", 19, 2, 16, 1))
sketch2.addConstraint(Sketcher.Constraint("Tangent", 20, 2, 21, 1))
sketch2.addConstraint(Sketcher.Constraint("Tangent", 21, 2, 22, 1))
sketch2.addConstraint(Sketcher.Constraint("Tangent", 22, 2, 23, 1))
sketch2.addConstraint(Sketcher.Constraint("Tangent", 23, 2, 20, 1))
sketch2.addConstraint(Sketcher.Constraint("Tangent", 24, 2, 25, 1))
sketch2.addConstraint(Sketcher.Constraint("Tangent", 25, 2, 26, 1))
sketch2.addConstraint(Sketcher.Constraint("Tangent", 26, 2, 27, 1))
sketch2.addConstraint(Sketcher.Constraint("Tangent", 27, 2, 24, 1))
sketch2.addConstraint(Sketcher.Constraint("Tangent", 28, 2, 29, 1))
sketch2.addConstraint(Sketcher.Constraint("Tangent", 29, 2, 30, 1))
sketch2.addConstraint(Sketcher.Constraint("Tangent", 30, 2, 31, 1))
sketch2.addConstraint(Sketcher.Constraint("Tangent", 31, 2, 28, 1))
sketch2.addConstraint(Sketcher.Constraint("Tangent", 32, 2, 33, 1))
sketch2.addConstraint(Sketcher.Constraint("Tangent", 33, 2, 34, 1))
sketch2.addConstraint(Sketcher.Constraint("Tangent", 34, 2, 35, 1))
sketch2.addConstraint(Sketcher.Constraint("Tangent", 35, 2, 32, 1))
sketch2.addConstraint(Sketcher.Constraint("Tangent", 36, 2, 37, 1))
sketch2.addConstraint(Sketcher.Constraint("Tangent", 37, 2, 38, 1))
sketch2.addConstraint(Sketcher.Constraint("Tangent", 38, 2, 39, 1))
sketch2.addConstraint(Sketcher.Constraint("Tangent", 39, 2, 36, 1))
sketch2.addConstraint(Sketcher.Constraint("Tangent", 40, 2, 41, 1))
sketch2.addConstraint(Sketcher.Constraint("Tangent", 41, 2, 42, 1))
sketch2.addConstraint(Sketcher.Constraint("Tangent", 42, 2, 43, 1))
sketch2.addConstraint(Sketcher.Constraint("Tangent", 43, 2, 40, 1))
sketch2.addConstraint(Sketcher.Constraint("Tangent", 44, 2, 45, 1))
sketch2.addConstraint(Sketcher.Constraint("Tangent", 45, 2, 46, 1))
sketch2.addConstraint(Sketcher.Constraint("Tangent", 46, 2, 47, 1))
sketch2.addConstraint(Sketcher.Constraint("Tangent", 47, 2, 44, 1))
sketch2.addConstraint(Sketcher.Constraint("Tangent", 48, 2, 49, 1))
sketch2.addConstraint(Sketcher.Constraint("Tangent", 49, 2, 50, 1))
sketch2.addConstraint(Sketcher.Constraint("Tangent", 50, 2, 51, 1))
sketch2.addConstraint(Sketcher.Constraint("Tangent", 51, 2, 48, 1))
sketch2.addConstraint(Sketcher.Constraint("Tangent", 52, 2, 53, 1))
sketch2.addConstraint(Sketcher.Constraint("Tangent", 53, 2, 54, 1))
sketch2.addConstraint(Sketcher.Constraint("Tangent", 54, 2, 55, 1))
sketch2.addConstraint(Sketcher.Constraint("Tangent", 55, 2, 52, 1))
sketch2.addConstraint(Sketcher.Constraint("Horizontal", 0))
sketch2.addConstraint(Sketcher.Constraint("Horizontal", 2))
sketch2.addConstraint(Sketcher.Constraint("Horizontal", 4))
sketch2.addConstraint(Sketcher.Constraint("Horizontal", 6))
sketch2.addConstraint(Sketcher.Constraint("Horizontal", 8))
sketch2.addConstraint(Sketcher.Constraint("Horizontal", 10))
sketch2.addConstraint(Sketcher.Constraint("Horizontal", 12))
sketch2.addConstraint(Sketcher.Constraint("Horizontal", 14))
sketch2.addConstraint(Sketcher.Constraint("Horizontal", 16))
sketch2.addConstraint(Sketcher.Constraint("Horizontal", 18))
sketch2.addConstraint(Sketcher.Constraint("Horizontal", 20))
sketch2.addConstraint(Sketcher.Constraint("Horizontal", 22))
sketch2.addConstraint(Sketcher.Constraint("Horizontal", 24))
sketch2.addConstraint(Sketcher.Constraint("Horizontal", 26))
sketch2.addConstraint(Sketcher.Constraint("Horizontal", 28))
sketch2.addConstraint(Sketcher.Constraint("Horizontal", 30))
sketch2.addConstraint(Sketcher.Constraint("Horizontal", 32))
sketch2.addConstraint(Sketcher.Constraint("Horizontal", 34))
sketch2.addConstraint(Sketcher.Constraint("Horizontal", 36))
sketch2.addConstraint(Sketcher.Constraint("Horizontal", 38))
sketch2.addConstraint(Sketcher.Constraint("Horizontal", 40))
sketch2.addConstraint(Sketcher.Constraint("Horizontal", 42))
sketch2.addConstraint(Sketcher.Constraint("Horizontal", 44))
sketch2.addConstraint(Sketcher.Constraint("Horizontal", 46))
sketch2.addConstraint(Sketcher.Constraint("Horizontal", 48))
sketch2.addConstraint(Sketcher.Constraint("Horizontal", 50))
sketch2.addConstraint(Sketcher.Constraint("Horizontal", 52))
sketch2.addConstraint(Sketcher.Constraint("Horizontal", 54))
sketch2.addConstraint(Sketcher.Constraint("Equal", 3, 5))
sketch2.addConstraint(Sketcher.Constraint("Equal", 7, 9))
sketch2.addConstraint(Sketcher.Constraint("Equal", 11, 13))
sketch2.addConstraint(Sketcher.Constraint("Equal", 15, 17))
sketch2.addConstraint(Sketcher.Constraint("Equal", 19, 21))
sketch2.addConstraint(Sketcher.Constraint("Equal", 23, 25))
sketch2.addConstraint(Sketcher.Constraint("Equal", 27, 29))
sketch2.addConstraint(Sketcher.Constraint("Equal", 31, 33))
sketch2.addConstraint(Sketcher.Constraint("Equal", 35, 37))
sketch2.addConstraint(Sketcher.Constraint("Equal", 39, 41))
sketch2.addConstraint(Sketcher.Constraint("Equal", 43, 45))
sketch2.addConstraint(Sketcher.Constraint("Equal", 47, 49))
sketch2.addConstraint(Sketcher.Constraint("Equal", 51, 53))
sketch2.addConstraint(Sketcher.Constraint("Horizontal", 3, 3, 5, 3))
sketch2.addConstraint(Sketcher.Constraint("Horizontal", 7, 3, 9, 3))
sketch2.addConstraint(Sketcher.Constraint("Horizontal", 11, 3, 13, 3))
sketch2.addConstraint(Sketcher.Constraint("Horizontal", 15, 3, 17, 3))
sketch2.addConstraint(Sketcher.Constraint("Horizontal", 19, 3, 21, 3))
sketch2.addConstraint(Sketcher.Constraint("Horizontal", 23, 3, 25, 3))
sketch2.addConstraint(Sketcher.Constraint("Horizontal", 27, 3, 29, 3))
sketch2.addConstraint(Sketcher.Constraint("Horizontal", 31, 3, 33, 3))
sketch2.addConstraint(Sketcher.Constraint("Horizontal", 35, 3, 37, 3))
sketch2.addConstraint(Sketcher.Constraint("Horizontal", 39, 3, 41, 3))
sketch2.addConstraint(Sketcher.Constraint("Horizontal", 43, 3, 45, 3))
sketch2.addConstraint(Sketcher.Constraint("Horizontal", 47, 3, 49, 3))
sketch2.addConstraint(Sketcher.Constraint("Horizontal", 51, 3, 53, 3))
sketch2.addConstraint(Sketcher.Constraint("Equal", 2, 4))
sketch2.addConstraint(Sketcher.Constraint("Equal", 6, 8))
sketch2.addConstraint(Sketcher.Constraint("Equal", 10, 12))
sketch2.addConstraint(Sketcher.Constraint("Equal", 14, 16))
sketch2.addConstraint(Sketcher.Constraint("Equal", 18, 20))
sketch2.addConstraint(Sketcher.Constraint("Equal", 22, 24))
sketch2.addConstraint(Sketcher.Constraint("Equal", 26, 28))
sketch2.addConstraint(Sketcher.Constraint("Equal", 30, 32))
sketch2.addConstraint(Sketcher.Constraint("Equal", 34, 36))
sketch2.addConstraint(Sketcher.Constraint("Equal", 38, 40))
sketch2.addConstraint(Sketcher.Constraint("Equal", 42, 44))
sketch2.addConstraint(Sketcher.Constraint("Equal", 46, 48))
sketch2.addConstraint(Sketcher.Constraint("Equal", 50, 52))
sketch2.addConstraint(Sketcher.Constraint("Radius", 1, Q("0.125 in")))
sketch2.addConstraint(Sketcher.Constraint("DistanceX", 0, 2, 0, 1, Q("1.25 in")))
sketch2.addConstraint(Sketcher.Constraint("DistanceY", -1, 1, 1, 3, Q("0.503 in")))
sketch2.addConstraint(Sketcher.Constraint("DistanceX", -1, 1, 1, 3, Q("0.3835 in")))
sketch2.addConstraint(Sketcher.Constraint("DistanceX", -1, 1, 5, 3, Q("4.2635 in")))
sketch2.addConstraint(Sketcher.Constraint("DistanceX", -1, 1, 9, 3, Q("8.1435 in")))
sketch2.addConstraint(Sketcher.Constraint("DistanceX", -1, 1, 13, 3, Q("12.0235 in")))
sketch2.addConstraint(Sketcher.Constraint("DistanceX", -1, 1, 17, 3, Q("15.9035 in")))
sketch2.addConstraint(Sketcher.Constraint("DistanceX", -1, 1, 21, 3, Q("19.7835 in")))
sketch2.addConstraint(Sketcher.Constraint("DistanceX", -1, 1, 25, 3, Q("23.6635 in")))
sketch2.addConstraint(Sketcher.Constraint("DistanceX", -1, 1, 29, 3, Q("27.5435 in")))
sketch2.addConstraint(Sketcher.Constraint("DistanceX", -1, 1, 33, 3, Q("31.4235 in")))
sketch2.addConstraint(Sketcher.Constraint("DistanceX", -1, 1, 37, 3, Q("35.3035 in")))
sketch2.addConstraint(Sketcher.Constraint("DistanceX", -1, 1, 41, 3, Q("39.1835 in")))
sketch2.addConstraint(Sketcher.Constraint("DistanceX", -1, 1, 45, 3, Q("43.0635 in")))
sketch2.addConstraint(Sketcher.Constraint("DistanceX", -1, 1, 49, 3, Q("46.9435 in")))
sketch2.addConstraint(Sketcher.Constraint("DistanceX", -1, 1, 53, 3, Q("50.8235 in")))
pocket1 = body.newObject("PartDesign::Pocket", "Pocket")
pocket1.Profile = sketch2
pocket1.Type = "ThroughAll"

sketch3 = body.newObject("Sketcher::SketchObject", "Sketch002")
sketch3.AttachmentSupport = (doc.getObject("XY_Plane"), [""])
sketch3.MapMode = "FlatFace"
sketch3.addGeometry(Part.Circle(App.Vector(1385, 34, 0), App.Vector(0, 0, 1), 9), False)
sketch3.addConstraint(Sketcher.Constraint("Diameter", 0, Q("0.74 in")))
sketch3.addConstraint(Sketcher.Constraint("DistanceY", -1, 1, 0, 3, Q("1.332 in")))
sketch3.addConstraint(Sketcher.Constraint("DistanceX", -1, 1, 0, 3, Q("54.5125 in")))
pocket2 = body.newObject("PartDesign::Pocket", "Pocket001")
pocket2.Profile = sketch3
pocket2.Type = "ThroughAll"
pocket2.Midplane = True

doc.recompute()
